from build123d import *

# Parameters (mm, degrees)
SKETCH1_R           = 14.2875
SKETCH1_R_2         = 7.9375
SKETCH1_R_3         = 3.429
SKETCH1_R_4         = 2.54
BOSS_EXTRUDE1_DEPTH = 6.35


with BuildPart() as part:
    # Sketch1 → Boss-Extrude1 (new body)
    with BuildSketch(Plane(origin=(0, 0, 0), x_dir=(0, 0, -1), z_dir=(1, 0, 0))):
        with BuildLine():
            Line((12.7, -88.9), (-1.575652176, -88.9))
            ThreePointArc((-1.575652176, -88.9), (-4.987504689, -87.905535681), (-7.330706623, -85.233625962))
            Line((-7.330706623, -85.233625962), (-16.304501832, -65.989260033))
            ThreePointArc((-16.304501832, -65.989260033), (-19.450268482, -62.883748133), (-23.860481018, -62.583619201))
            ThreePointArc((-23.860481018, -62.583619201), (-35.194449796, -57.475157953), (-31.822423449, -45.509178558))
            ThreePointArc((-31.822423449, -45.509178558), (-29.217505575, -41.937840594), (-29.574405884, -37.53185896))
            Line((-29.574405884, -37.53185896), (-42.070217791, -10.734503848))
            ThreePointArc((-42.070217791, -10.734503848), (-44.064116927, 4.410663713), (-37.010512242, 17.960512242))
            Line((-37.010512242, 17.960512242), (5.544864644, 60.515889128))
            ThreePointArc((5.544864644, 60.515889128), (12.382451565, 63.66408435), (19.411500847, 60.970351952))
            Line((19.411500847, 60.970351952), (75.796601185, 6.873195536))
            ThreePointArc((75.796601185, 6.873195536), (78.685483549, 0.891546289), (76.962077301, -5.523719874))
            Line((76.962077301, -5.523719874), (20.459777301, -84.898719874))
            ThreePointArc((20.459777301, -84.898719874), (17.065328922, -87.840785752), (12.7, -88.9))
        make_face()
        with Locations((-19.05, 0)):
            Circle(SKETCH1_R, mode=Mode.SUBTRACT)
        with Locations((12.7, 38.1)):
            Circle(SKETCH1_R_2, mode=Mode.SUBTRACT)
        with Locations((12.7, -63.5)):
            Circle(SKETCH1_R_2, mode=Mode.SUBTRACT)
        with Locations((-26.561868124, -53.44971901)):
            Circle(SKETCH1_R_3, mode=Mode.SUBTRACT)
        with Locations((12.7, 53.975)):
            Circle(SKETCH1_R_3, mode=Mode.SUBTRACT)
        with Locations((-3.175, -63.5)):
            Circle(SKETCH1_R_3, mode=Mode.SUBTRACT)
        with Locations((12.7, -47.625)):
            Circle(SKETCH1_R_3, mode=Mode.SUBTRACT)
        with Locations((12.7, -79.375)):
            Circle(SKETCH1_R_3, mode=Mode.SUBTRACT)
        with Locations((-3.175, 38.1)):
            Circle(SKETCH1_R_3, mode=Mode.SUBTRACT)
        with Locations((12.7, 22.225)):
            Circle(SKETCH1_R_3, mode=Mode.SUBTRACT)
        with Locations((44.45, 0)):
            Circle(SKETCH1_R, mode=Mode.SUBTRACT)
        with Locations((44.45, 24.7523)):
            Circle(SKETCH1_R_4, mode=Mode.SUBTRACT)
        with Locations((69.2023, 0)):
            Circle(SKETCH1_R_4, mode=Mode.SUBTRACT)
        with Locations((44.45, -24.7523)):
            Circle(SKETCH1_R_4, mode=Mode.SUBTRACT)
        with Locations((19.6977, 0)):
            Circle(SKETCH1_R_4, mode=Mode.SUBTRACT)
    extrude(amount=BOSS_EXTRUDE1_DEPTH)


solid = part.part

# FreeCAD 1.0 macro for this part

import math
import FreeCAD as App
import Part
import Sketcher

V = App.Vector
Q = App.Units.Quantity

doc = App.newDocument("Part")
body = doc.addObject("PartDesign::Body", "Body")

# Sketch on YZ plane
sketch1 = body.newObject("Sketcher::SketchObject", "Sketch")
sketch1.AttachmentSupport = (doc.getObject("YZ_Plane"), [""])
sketch1.MapMode = "FlatFace"
sketch1.addGeometry(Part.LineSegment(V(-88.9, 1.6, 0), V(-88.9, -12.7, 0)), False)
sketch1.addGeometry(Part.ArcOfCircle(Part.Circle(V(-79.4, -12.7, 0), V(0, 0, 1), 9.5), math.radians(-180), math.radians(-125)), False)
sketch1.addGeometry(Part.LineSegment(V(-84.9, -20.5, 0), V(-5.5, -77, 0)), False)
sketch1.addGeometry(Part.ArcOfCircle(Part.Circle(V(0, -69.2, 0), V(0, 0, 1), 9.5), math.radians(-125), math.radians(-44)), False)
sketch1.addGeometry(Part.LineSegment(V(6.9, -75.8, 0), V(61, -19.4, 0)), False)
sketch1.addGeometry(Part.ArcOfCircle(Part.Circle(V(54, -12.7, 0), V(0, 0, 1), 9.7), math.radians(-44), math.radians(48)), False)
sketch1.addGeometry(Part.LineSegment(V(60.5, -5.5, 0), V(18, 37, 0)), False)
sketch1.addGeometry(Part.ArcOfCircle(Part.Circle(V(0, 19.1, 0), V(0, 0, 1), 25.4), math.radians(45), math.radians(115)), False)
sketch1.addGeometry(Part.LineSegment(V(-10.7, 42.1, 0), V(-37.5, 29.6, 0)), False)
sketch1.addGeometry(Part.ArcOfCircle(Part.Circle(V(-40.2, 35.3, 0), V(0, 0, 1), 6.3), math.radians(-146), math.radians(-65)), False)
sketch1.addGeometry(Part.ArcOfCircle(Part.Circle(V(-53.4, 26.6, 0), V(0, 0, 1), 9.5), math.radians(34), math.radians(196)), False)
sketch1.addGeometry(Part.ArcOfCircle(Part.Circle(V(-68.7, 22.1, 0), V(0, 0, 1), 6.4), math.radians(-65), math.radians(16)), False)
sketch1.addGeometry(Part.LineSegment(V(-66, 16.3, 0), V(-85.2, 7.3, 0)), False)
sketch1.addGeometry(Part.ArcOfCircle(Part.Circle(V(-82.6, 1.6, 0), V(0, 0, 1), 6.3), math.radians(115), math.radians(180)), False)
sketch1.addGeometry(Part.Circle(V(-24.8, -44.5, 0), V(0, 0, 1), 2.5), False)
sketch1.addGeometry(Part.Circle(V(-79.4, -12.7, 0), V(0, 0, 1), 3.4), False)
sketch1.addGeometry(Part.Circle(V(-63.5, -12.7, 0), V(0, 0, 1), 7.9), False)
sketch1.addGeometry(Part.Circle(V(-63.5, 3.2, 0), V(0, 0, 1), 3.4), False)
sketch1.addGeometry(Part.Circle(V(-53.4, 26.6, 0), V(0, 0, 1), 3.4), False)
sketch1.addGeometry(Part.Circle(V(-47.6, -12.7, 0), V(0, 0, 1), 3.4), False)
sketch1.addGeometry(Part.Circle(V(0, -69.2, 0), V(0, 0, 1), 2.5), False)
sketch1.addGeometry(Part.Circle(V(0, -44.5, 0), V(0, 0, 1), 14.3), False)
sketch1.addGeometry(Part.Circle(V(0, -19.7, 0), V(0, 0, 1), 2.5), False)
sketch1.addGeometry(Part.Circle(V(24.8, -44.5, 0), V(0, 0, 1), 2.5), False)
sketch1.addGeometry(Part.Circle(V(22.2, -12.7, 0), V(0, 0, 1), 3.4), False)
sketch1.addGeometry(Part.Circle(V(0, 19.1, 0), V(0, 0, 1), 14.3), False)
sketch1.addGeometry(Part.Circle(V(38.1, -12.7, 0), V(0, 0, 1), 7.9), False)
sketch1.addGeometry(Part.Circle(V(38.1, 3.2, 0), V(0, 0, 1), 3.4), False)
sketch1.addGeometry(Part.Circle(V(54, -12.7, 0), V(0, 0, 1), 3.4), False)
sketch1.addConstraint(Sketcher.Constraint("Tangent", 0, 2, 1, 1))
sketch1.addConstraint(Sketcher.Constraint("Tangent", 1, 2, 2, 1))
sketch1.addConstraint(Sketcher.Constraint("Tangent", 2, 2, 3, 1))
sketch1.addConstraint(Sketcher.Constraint("Tangent", 3, 2, 4, 1))
sketch1.addConstraint(Sketcher.Constraint("Tangent", 4, 2, 5, 1))
sketch1.addConstraint(Sketcher.Constraint("Coincident", 5, 2, 6, 1))
sketch1.addConstraint(Sketcher.Constraint("Tangent", 6, 2, 7, 1))
sketch1.addConstraint(Sketcher.Constraint("Tangent", 7, 2, 8, 1))
sketch1.addConstraint(Sketcher.Constraint("Tangent", 8, 2, 9, 2))
sketch1.addConstraint(Sketcher.Constraint("Tangent", 9, 1, 10, 1))
sketch1.addConstraint(Sketcher.Constraint("Tangent", 10, 2, 11, 2))
sketch1.addConstraint(Sketcher.Constraint("Tangent", 11, 1, 12, 1))
sketch1.addConstraint(Sketcher.Constraint("Tangent", 12, 2, 13, 1))
sketch1.addConstraint(Sketcher.Constraint("Tangent", 13, 2, 0, 1))
sketch1.addConstraint(Sketcher.Constraint("Vertical", 0))
sketch1.addConstraint(Sketcher.Constraint("Coincident", 15, 3, 1, 3))
sketch1.addConstraint(Sketcher.Constraint("Coincident", 18, 3, 10, 3))
sketch1.addConstraint(Sketcher.Constraint("Coincident", 20, 3, 3, 3))
sketch1.addConstraint(Sketcher.Constraint("Coincident", 25, 3, 7, 3))
sketch1.addConstraint(Sketcher.Constraint("Coincident", 28, 3, 5, 3))
sketch1.addConstraint(Sketcher.Constraint("Equal", 1, 3))
sketch1.addConstraint(Sketcher.Constraint("Equal", 3, 10))
sketch1.addConstraint(Sketcher.Constraint("Equal", 9, 11))
sketch1.addConstraint(Sketcher.Constraint("Equal", 11, 13))
sketch1.addConstraint(Sketcher.Constraint("Equal", 15, 17))
sketch1.addConstraint(Sketcher.Constraint("Equal", 17, 18))
sketch1.addConstraint(Sketcher.Constraint("Equal", 18, 19))
sketch1.addConstraint(Sketcher.Constraint("Equal", 14, 20))
sketch1.addConstraint(Sketcher.Constraint("Equal", 20, 22))
sketch1.addConstraint(Sketcher.Constraint("Equal", 22, 23))
sketch1.addConstraint(Sketcher.Constraint("Equal", 19, 24))
sketch1.addConstraint(Sketcher.Constraint("Equal", 21, 25))
sketch1.addConstraint(Sketcher.Constraint("Equal", 16, 26))
sketch1.addConstraint(Sketcher.Constraint("Equal", 24, 27))
sketch1.addConstraint(Sketcher.Constraint("Equal", 27, 28))
sketch1.addConstraint(Sketcher.Constraint("Symmetric", 14, 3, 23, 3, -2))
sketch1.addConstraint(Sketcher.Constraint("PointOnObject", 3, 3, -2))
sketch1.addConstraint(Sketcher.Constraint("PointOnObject", 7, 3, -2))
sketch1.addConstraint(Sketcher.Constraint("PointOnObject", 21, 3, -2))
sketch1.addConstraint(Sketcher.Constraint("PointOnObject", 22, 3, -2))
sketch1.addConstraint(Sketcher.Constraint("Parallel", 8, 12))
sketch1.addConstraint(Sketcher.Constraint("Horizontal", 1, 3, 5, 3))
sketch1.addConstraint(Sketcher.Constraint("Horizontal", 15, 3, 16, 3))
sketch1.addConstraint(Sketcher.Constraint("Horizontal", 16, 3, 19, 3))
sketch1.addConstraint(Sketcher.Constraint("Horizontal", 14, 3, 21, 3))
sketch1.addConstraint(Sketcher.Constraint("Horizontal", 19, 3, 24, 3))
sketch1.addConstraint(Sketcher.Constraint("Horizontal", 24, 3, 26, 3))
sketch1.addConstraint(Sketcher.Constraint("Horizontal", 17, 3, 27, 3))
sketch1.addConstraint(Sketcher.Constraint("Vertical", 16, 3, 17, 3))
sketch1.addConstraint(Sketcher.Constraint("Vertical", 26, 3, 27, 3))
sketch1.addConstraint(Sketcher.Constraint("Radius", 7, Q("1 in")))
sketch1.addConstraint(Sketcher.Constraint("Diameter", 14, Q("0.2 in")))
sketch1.addConstraint(Sketcher.Constraint("Diameter", 15, Q("0.27 in")))
sketch1.addConstraint(Sketcher.Constraint("Radius", 9, Q("0.25 in")))
sketch1.addConstraint(Sketcher.Constraint("Diameter", 16, Q("0.625 in")))
sketch1.addConstraint(Sketcher.Constraint("Diameter", 21, Q("1.125 in")))
sketch1.addConstraint(Sketcher.Constraint("Angle", 6, Q("135 deg")))
sketch1.addConstraint(Sketcher.Constraint("Angle", 8, Q("-155 deg")))
sketch1.addConstraint(Sketcher.Constraint("Radius", 1, Q("0.375 in")))
sketch1.addConstraint(Sketcher.Constraint("DistanceX", 0, 2, 16, 3, Q("1 in")))
sketch1.addConstraint(Sketcher.Constraint("DistanceY", 1, 3, -1, 1, Q("0.5 in")))
sketch1.addConstraint(Sketcher.Constraint("DistanceX", 16, 3, -1, 1, Q("2.5 in")))
sketch1.addConstraint(Sketcher.Constraint("DistanceX", -1, 1, 26, 3, Q("1.5 in")))
sketch1.addConstraint(Sketcher.Constraint("DistanceY", 14, 3, 7, 3, Q("2.5 in")))
sketch1.addConstraint(Sketcher.Constraint("DistanceY", -1, 1, 7, 3, Q("0.75 in")))
sketch1.addConstraint(Sketcher.Constraint("DistanceX", 1, 3, 5, 3, Q("5.25 in")))
sketch1.addConstraint(Sketcher.Constraint("DistanceX", 1, 3, 19, 3, Q("1.25 in")))
sketch1.addConstraint(Sketcher.Constraint("DistanceX", 24, 3, 5, 3, Q("1.25 in")))
sketch1.addConstraint(Sketcher.Constraint("DistanceY", -1, 1, 17, 3, Q("0.125 in")))
sketch1.addConstraint(Sketcher.Constraint("DistanceY", 20, 3, 22, 3, Q("1.949 in")))
sketch1.addConstraint(Sketcher.Constraint("DistanceY", 3, 3, -1, 1, Q("2.7245 in")))
sketch1.addConstraint(Sketcher.Constraint("DistanceX", 14, 3, -1, 1, Q("0.9745 in")))
sketch1.addConstraint(Sketcher.Constraint("DistanceX", 9, 1, -1, 1, Q("1.7916999 in")))
sketch1.addConstraint(Sketcher.Constraint("Radius", 5, 9.694287))
sketch1.addConstraint(Sketcher.Constraint("DistanceY", -1, 1, 11, 1, 16.304502))
sketch1.addConstraint(Sketcher.Constraint("DistanceX", 11, 3, 9, 3, 28.457401))
pad1 = body.newObject("PartDesign::Pad", "Pad")
pad1.Profile = sketch1
pad1.Length = Q("0.25 in")

doc.recompute()
